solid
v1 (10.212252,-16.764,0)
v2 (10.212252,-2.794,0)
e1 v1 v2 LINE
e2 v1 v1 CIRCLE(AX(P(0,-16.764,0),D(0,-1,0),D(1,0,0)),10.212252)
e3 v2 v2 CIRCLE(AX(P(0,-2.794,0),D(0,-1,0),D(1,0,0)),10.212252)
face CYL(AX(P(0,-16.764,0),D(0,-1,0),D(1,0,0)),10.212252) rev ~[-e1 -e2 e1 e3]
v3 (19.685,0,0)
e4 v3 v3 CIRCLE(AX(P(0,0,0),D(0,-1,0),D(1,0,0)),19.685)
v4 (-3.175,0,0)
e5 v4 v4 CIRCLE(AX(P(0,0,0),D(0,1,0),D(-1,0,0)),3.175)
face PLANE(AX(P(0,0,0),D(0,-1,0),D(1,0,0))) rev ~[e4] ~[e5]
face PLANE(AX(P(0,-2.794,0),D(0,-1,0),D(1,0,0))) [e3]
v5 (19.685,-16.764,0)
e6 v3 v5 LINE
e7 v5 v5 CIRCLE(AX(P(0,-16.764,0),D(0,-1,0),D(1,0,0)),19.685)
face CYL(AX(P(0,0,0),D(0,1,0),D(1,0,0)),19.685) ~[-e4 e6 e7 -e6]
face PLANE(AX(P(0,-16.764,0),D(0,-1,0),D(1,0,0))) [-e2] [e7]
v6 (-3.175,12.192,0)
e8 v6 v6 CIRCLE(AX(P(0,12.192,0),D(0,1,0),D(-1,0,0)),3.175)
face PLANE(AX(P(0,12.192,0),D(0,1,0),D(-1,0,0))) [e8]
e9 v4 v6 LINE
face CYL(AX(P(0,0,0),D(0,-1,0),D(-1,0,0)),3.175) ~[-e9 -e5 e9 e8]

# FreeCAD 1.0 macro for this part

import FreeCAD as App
import Part
import Sketcher
Q = App.Units.Quantity

doc = App.newDocument("Part")
body = doc.addObject("PartDesign::Body", "Body")

# Sketch on XZ plane
sketch1 = body.newObject("Sketcher::SketchObject", "Sketch")
sketch1.AttachmentSupport = (doc.getObject("XZ_Plane"), [""])
sketch1.MapMode = "FlatFace"
sketch1.addGeometry(Part.Circle(App.Vector(0, 0, 0), App.Vector(0, 0, 1), 20), False)
sketch1.addConstraint(Sketcher.Constraint("Coincident", 0, 3, -1, 1))
sketch1.addConstraint(Sketcher.Constraint("Diameter", 0, Q("1.55 in")))
pad1 = body.newObject("PartDesign::Pad", "Pad")
pad1.Profile = sketch1
pad1.Length = Q("0.66 in")

# Sketch on XZ plane
sketch2 = body.newObject("Sketcher::SketchObject", "Sketch001")
sketch2.AttachmentSupport = (doc.getObject("XZ_Plane"), [""])
sketch2.MapMode = "FlatFace"
sketch2.AttachmentOffset = App.Placement(App.Vector(0, 0, 0.66 * 25.4), App.Rotation())
sketch2.addGeometry(Part.Circle(App.Vector(0, 0, 0), App.Vector(0, 0, 1), 10), False)
sketch2.addConstraint(Sketcher.Constraint("Coincident", 0, 3, -1, 1))
sketch2.addConstraint(Sketcher.Constraint("Diameter", 0, 20.424504))
pocket1 = body.newObject("PartDesign::Pocket", "Pocket")
pocket1.Profile = sketch2
pocket1.Length = Q("0.55 in")

# Sketch on XZ plane
sketch3 = body.newObject("Sketcher::SketchObject", "Sketch002")
sketch3.AttachmentSupport = (doc.getObject("XZ_Plane"), [""])
sketch3.MapMode = "FlatFace"
sketch3.addGeometry(Part.Circle(App.Vector(0, 0, 0), App.Vector(0, 0, 1), 3.2), False)
sketch3.addConstraint(Sketcher.Constraint("Coincident", 0, 3, -1, 1))
sketch3.addConstraint(Sketcher.Constraint("Diameter", 0, Q("0.25 in")))
pad2 = body.newObject("PartDesign::Pad", "Pad001")
pad2.Profile = sketch3
pad2.Length = Q("0.48 in")
pad2.Reversed = True

doc.recompute()
